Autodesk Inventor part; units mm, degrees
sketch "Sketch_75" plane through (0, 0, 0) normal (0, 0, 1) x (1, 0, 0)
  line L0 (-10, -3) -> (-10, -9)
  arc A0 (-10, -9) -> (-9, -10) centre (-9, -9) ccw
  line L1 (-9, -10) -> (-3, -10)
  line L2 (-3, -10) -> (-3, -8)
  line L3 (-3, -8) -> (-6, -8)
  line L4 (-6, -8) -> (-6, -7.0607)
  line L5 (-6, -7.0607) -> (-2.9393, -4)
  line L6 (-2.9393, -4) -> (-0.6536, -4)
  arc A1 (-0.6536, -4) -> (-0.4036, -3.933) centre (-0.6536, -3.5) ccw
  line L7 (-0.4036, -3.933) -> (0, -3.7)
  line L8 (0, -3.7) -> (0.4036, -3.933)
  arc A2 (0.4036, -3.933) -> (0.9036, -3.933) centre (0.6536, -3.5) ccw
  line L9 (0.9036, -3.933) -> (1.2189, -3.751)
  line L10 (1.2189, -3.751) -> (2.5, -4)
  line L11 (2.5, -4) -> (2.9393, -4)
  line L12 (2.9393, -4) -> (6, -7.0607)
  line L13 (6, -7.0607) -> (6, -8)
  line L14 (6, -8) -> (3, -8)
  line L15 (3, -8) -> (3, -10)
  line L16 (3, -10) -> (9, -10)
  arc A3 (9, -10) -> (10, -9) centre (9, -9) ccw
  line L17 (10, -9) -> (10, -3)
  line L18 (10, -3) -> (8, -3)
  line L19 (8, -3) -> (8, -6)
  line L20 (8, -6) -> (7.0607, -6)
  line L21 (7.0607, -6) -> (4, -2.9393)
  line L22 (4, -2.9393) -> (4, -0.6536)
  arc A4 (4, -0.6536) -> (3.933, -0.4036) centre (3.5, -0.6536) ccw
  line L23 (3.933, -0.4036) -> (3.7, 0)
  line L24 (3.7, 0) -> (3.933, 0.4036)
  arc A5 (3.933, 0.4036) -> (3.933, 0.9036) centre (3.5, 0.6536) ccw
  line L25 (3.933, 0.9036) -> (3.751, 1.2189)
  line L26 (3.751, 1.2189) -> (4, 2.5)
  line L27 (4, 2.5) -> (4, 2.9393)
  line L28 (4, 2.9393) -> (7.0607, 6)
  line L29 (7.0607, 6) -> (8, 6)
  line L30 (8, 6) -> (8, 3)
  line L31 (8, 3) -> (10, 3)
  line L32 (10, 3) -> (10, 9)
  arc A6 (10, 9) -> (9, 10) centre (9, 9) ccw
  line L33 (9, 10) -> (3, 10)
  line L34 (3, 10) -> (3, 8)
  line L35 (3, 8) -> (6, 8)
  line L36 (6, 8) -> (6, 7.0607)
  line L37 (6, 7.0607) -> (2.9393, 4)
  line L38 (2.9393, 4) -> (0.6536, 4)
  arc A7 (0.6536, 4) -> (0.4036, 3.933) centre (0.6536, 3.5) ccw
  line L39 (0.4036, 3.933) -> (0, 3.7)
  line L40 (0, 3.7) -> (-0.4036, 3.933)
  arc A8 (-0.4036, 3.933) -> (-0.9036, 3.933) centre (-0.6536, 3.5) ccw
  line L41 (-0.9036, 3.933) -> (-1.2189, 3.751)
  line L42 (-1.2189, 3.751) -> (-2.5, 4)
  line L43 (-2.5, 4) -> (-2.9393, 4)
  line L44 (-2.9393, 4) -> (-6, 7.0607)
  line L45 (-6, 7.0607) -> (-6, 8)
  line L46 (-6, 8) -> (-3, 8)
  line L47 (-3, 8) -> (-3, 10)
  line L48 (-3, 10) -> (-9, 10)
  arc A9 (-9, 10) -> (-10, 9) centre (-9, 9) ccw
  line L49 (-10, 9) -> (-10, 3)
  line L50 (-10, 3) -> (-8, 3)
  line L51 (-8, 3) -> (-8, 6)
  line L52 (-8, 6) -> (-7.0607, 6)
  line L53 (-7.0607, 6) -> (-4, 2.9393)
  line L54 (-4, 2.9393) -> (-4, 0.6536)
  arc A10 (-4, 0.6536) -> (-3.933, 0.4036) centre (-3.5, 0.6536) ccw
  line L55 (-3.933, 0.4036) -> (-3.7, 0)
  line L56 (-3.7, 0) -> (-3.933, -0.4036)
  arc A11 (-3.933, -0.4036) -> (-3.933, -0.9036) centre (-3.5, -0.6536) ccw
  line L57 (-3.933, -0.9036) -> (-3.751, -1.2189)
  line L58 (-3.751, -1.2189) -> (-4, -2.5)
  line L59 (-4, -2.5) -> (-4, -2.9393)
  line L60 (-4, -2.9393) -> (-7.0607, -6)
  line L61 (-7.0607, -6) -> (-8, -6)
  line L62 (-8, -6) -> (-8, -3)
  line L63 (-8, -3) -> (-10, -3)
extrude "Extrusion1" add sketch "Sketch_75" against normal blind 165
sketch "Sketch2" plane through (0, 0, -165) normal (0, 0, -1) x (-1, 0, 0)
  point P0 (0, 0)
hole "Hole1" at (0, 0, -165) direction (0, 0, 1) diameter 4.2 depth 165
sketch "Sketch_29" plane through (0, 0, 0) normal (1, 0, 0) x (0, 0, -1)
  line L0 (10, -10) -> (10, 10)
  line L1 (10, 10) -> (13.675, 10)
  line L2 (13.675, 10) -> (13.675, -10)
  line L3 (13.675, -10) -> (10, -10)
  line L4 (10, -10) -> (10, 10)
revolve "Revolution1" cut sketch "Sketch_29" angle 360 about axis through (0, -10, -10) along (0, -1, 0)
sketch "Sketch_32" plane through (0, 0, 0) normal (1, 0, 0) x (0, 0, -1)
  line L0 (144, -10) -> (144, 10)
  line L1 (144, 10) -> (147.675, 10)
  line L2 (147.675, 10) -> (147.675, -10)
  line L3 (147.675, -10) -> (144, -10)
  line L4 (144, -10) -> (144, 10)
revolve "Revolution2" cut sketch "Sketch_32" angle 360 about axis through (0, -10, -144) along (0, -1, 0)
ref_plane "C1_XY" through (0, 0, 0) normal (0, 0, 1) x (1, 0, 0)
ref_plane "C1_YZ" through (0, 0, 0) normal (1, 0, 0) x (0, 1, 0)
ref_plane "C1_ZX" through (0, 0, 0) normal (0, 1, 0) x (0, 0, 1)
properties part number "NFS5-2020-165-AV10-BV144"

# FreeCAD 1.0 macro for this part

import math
import FreeCAD as App
import Part
import Sketcher
Q = App.Units.Quantity

doc = App.newDocument("Part")
params = doc.addObject("Spreadsheet::Sheet", "Params")
for row, (alias, value) in enumerate([
    ("sketch1_radius", "1 mm"),
    ("sketch1_radius2", "0.5 mm"),
    ("sketch1_width", "2 mm"),
    ("sketch1_width2", "6 mm"),
    ("sketch1_width3", "3 mm"),
    ("pad1_length", "165 mm"),
    ("sketch2_diameter", "4.2 mm"),
    ("hole_diameter", "4.2 mm"),
    ("hole_depth", "165 mm"),
    ("sketch3_width", "20 mm"),
    ("groove_angle", "360 deg"),
    ("sketch4_width", "20 mm"),
    ("groove2_angle", "360 deg"),
], start=1):
    params.set(f"A{row}", alias)
    params.set(f"B{row}", "=" + value)
    params.setAlias(f"B{row}", alias)

body = doc.addObject("PartDesign::Body", "Body")

# Sketch on XY plane
sketch1 = doc.addObject("Sketcher::SketchObject", "Sketch")
body.addObject(sketch1)
sketch1.AttachmentSupport = (doc.XY_Plane, [""])
sketch1.MapMode = "FlatFace"
sketch1.addGeometry(Part.LineSegment(App.Vector(-8, -3, 0), App.Vector(-10, -3, 0)), False)
sketch1.addGeometry(Part.LineSegment(App.Vector(-10, -3, 0), App.Vector(-10, -9, 0)), False)
sketch1.addGeometry(Part.ArcOfCircle(Part.Circle(App.Vector(-9, -9, 0), App.Vector(0, 0, 1), 1), math.radians(180), math.radians(270)), False)
sketch1.addGeometry(Part.LineSegment(App.Vector(-9, -10, 0), App.Vector(-3, -10, 0)), False)
sketch1.addGeometry(Part.LineSegment(App.Vector(-3, -10, 0), App.Vector(-3, -8, 0)), False)
sketch1.addGeometry(Part.LineSegment(App.Vector(-3, -8, 0), App.Vector(-6, -8, 0)), False)
sketch1.addGeometry(Part.LineSegment(App.Vector(-6, -8, 0), App.Vector(-6, -7.0607, 0)), False)
sketch1.addGeometry(Part.LineSegment(App.Vector(-6, -7.0607, 0), App.Vector(-2.9393, -4, 0)), False)
sketch1.addGeometry(Part.LineSegment(App.Vector(-2.9393, -4, 0), App.Vector(-0.6536, -4, 0)), False)
sketch1.addGeometry(Part.ArcOfCircle(Part.Circle(App.Vector(-0.6536, -3.5, 0), App.Vector(0, 0, 1), 0.5), math.radians(-90), math.radians(-59.999272)), False)
sketch1.addGeometry(Part.LineSegment(App.Vector(-0.4036, -3.933, 0), App.Vector(0, -3.7, 0)), False)
sketch1.addGeometry(Part.LineSegment(App.Vector(0, -3.7, 0), App.Vector(0.4036, -3.933, 0)), False)
sketch1.addGeometry(Part.ArcOfCircle(Part.Circle(App.Vector(0.6536, -3.5, 0), App.Vector(0, 0, 1), 0.499989), math.radians(-120.000728), math.radians(-59.999272)), False)
sketch1.addGeometry(Part.LineSegment(App.Vector(0.9036, -3.933, 0), App.Vector(1.2189, -3.751, 0)), False)
sketch1.addGeometry(Part.LineSegment(App.Vector(1.2189, -3.751, 0), App.Vector(2.5, -4, 0)), False)
sketch1.addGeometry(Part.LineSegment(App.Vector(2.5, -4, 0), App.Vector(2.9393, -4, 0)), False)
sketch1.addGeometry(Part.LineSegment(App.Vector(2.9393, -4, 0), App.Vector(6, -7.0607, 0)), False)
sketch1.addGeometry(Part.LineSegment(App.Vector(6, -7.0607, 0), App.Vector(6, -8, 0)), False)
sketch1.addGeometry(Part.LineSegment(App.Vector(6, -8, 0), App.Vector(3, -8, 0)), False)
sketch1.addGeometry(Part.LineSegment(App.Vector(3, -8, 0), App.Vector(3, -10, 0)), False)
sketch1.addGeometry(Part.LineSegment(App.Vector(3, -10, 0), App.Vector(9, -10, 0)), False)
sketch1.addGeometry(Part.ArcOfCircle(Part.Circle(App.Vector(9, -9, 0), App.Vector(0, 0, 1), 1), math.radians(-90), math.radians(0)), False)
sketch1.addGeometry(Part.LineSegment(App.Vector(10, -9, 0), App.Vector(10, -3, 0)), False)
sketch1.addGeometry(Part.LineSegment(App.Vector(10, -3, 0), App.Vector(8, -3, 0)), False)
sketch1.addGeometry(Part.LineSegment(App.Vector(8, -3, 0), App.Vector(8, -6, 0)), False)
sketch1.addGeometry(Part.LineSegment(App.Vector(8, -6, 0), App.Vector(7.0607, -6, 0)), False)
sketch1.addGeometry(Part.LineSegment(App.Vector(7.0607, -6, 0), App.Vector(4, -2.9393, 0)), False)
sketch1.addGeometry(Part.LineSegment(App.Vector(4, -2.9393, 0), App.Vector(4, -0.6536, 0)), False)
sketch1.addGeometry(Part.ArcOfCircle(Part.Circle(App.Vector(3.5, -0.6536, 0), App.Vector(0, 0, 1), 0.5), math.radians(0), math.radians(30.000728)), False)
sketch1.addGeometry(Part.LineSegment(App.Vector(3.933, -0.4036, 0), App.Vector(3.7, 0, 0)), False)
sketch1.addGeometry(Part.LineSegment(App.Vector(3.7, 0, 0), App.Vector(3.933, 0.4036, 0)), False)
sketch1.addGeometry(Part.ArcOfCircle(Part.Circle(App.Vector(3.5, 0.6536, 0), App.Vector(0, 0, 1), 0.499989), math.radians(-30.000728), math.radians(30.000728)), False)
sketch1.addGeometry(Part.LineSegment(App.Vector(3.933, 0.9036, 0), App.Vector(3.751, 1.2189, 0)), False)
sketch1.addGeometry(Part.LineSegment(App.Vector(3.751, 1.2189, 0), App.Vector(4, 2.5, 0)), False)
sketch1.addGeometry(Part.LineSegment(App.Vector(4, 2.5, 0), App.Vector(4, 2.9393, 0)), False)
sketch1.addGeometry(Part.LineSegment(App.Vector(4, 2.9393, 0), App.Vector(7.0607, 6, 0)), False)
sketch1.addGeometry(Part.LineSegment(App.Vector(7.0607, 6, 0), App.Vector(8, 6, 0)), False)
sketch1.addGeometry(Part.LineSegment(App.Vector(8, 6, 0), App.Vector(8, 3, 0)), False)
sketch1.addGeometry(Part.LineSegment(App.Vector(8, 3, 0), App.Vector(10, 3, 0)), False)
sketch1.addGeometry(Part.LineSegment(App.Vector(10, 3, 0), App.Vector(10, 9, 0)), False)
sketch1.addGeometry(Part.ArcOfCircle(Part.Circle(App.Vector(9, 9, 0), App.Vector(0, 0, 1), 1), math.radians(0), math.radians(90)), False)
sketch1.addGeometry(Part.LineSegment(App.Vector(9, 10, 0), App.Vector(3, 10, 0)), False)
sketch1.addGeometry(Part.LineSegment(App.Vector(3, 10, 0), App.Vector(3, 8, 0)), False)
sketch1.addGeometry(Part.LineSegment(App.Vector(3, 8, 0), App.Vector(6, 8, 0)), False)
sketch1.addGeometry(Part.LineSegment(App.Vector(6, 8, 0), App.Vector(6, 7.0607, 0)), False)
sketch1.addGeometry(Part.LineSegment(App.Vector(6, 7.0607, 0), App.Vector(2.9393, 4, 0)), False)
sketch1.addGeometry(Part.LineSegment(App.Vector(2.9393, 4, 0), App.Vector(0.6536, 4, 0)), False)
sketch1.addGeometry(Part.ArcOfCircle(Part.Circle(App.Vector(0.6536, 3.5, 0), App.Vector(0, 0, 1), 0.5), math.radians(90), math.radians(120.000728)), False)
sketch1.addGeometry(Part.LineSegment(App.Vector(0.4036, 3.933, 0), App.Vector(0, 3.7, 0)), False)
sketch1.addGeometry(Part.LineSegment(App.Vector(0, 3.7, 0), App.Vector(-0.4036, 3.933, 0)), False)
sketch1.addGeometry(Part.ArcOfCircle(Part.Circle(App.Vector(-0.6536, 3.5, 0), App.Vector(0, 0, 1), 0.499989), math.radians(59.999272), math.radians(120.000728)), False)
sketch1.addGeometry(Part.LineSegment(App.Vector(-0.9036, 3.933, 0), App.Vector(-1.2189, 3.751, 0)), False)
sketch1.addGeometry(Part.LineSegment(App.Vector(-1.2189, 3.751, 0), App.Vector(-2.5, 4, 0)), False)
sketch1.addGeometry(Part.LineSegment(App.Vector(-2.5, 4, 0), App.Vector(-2.9393, 4, 0)), False)
sketch1.addGeometry(Part.LineSegment(App.Vector(-2.9393, 4, 0), App.Vector(-6, 7.0607, 0)), False)
sketch1.addGeometry(Part.LineSegment(App.Vector(-6, 7.0607, 0), App.Vector(-6, 8, 0)), False)
sketch1.addGeometry(Part.LineSegment(App.Vector(-6, 8, 0), App.Vector(-3, 8, 0)), False)
sketch1.addGeometry(Part.LineSegment(App.Vector(-3, 8, 0), App.Vector(-3, 10, 0)), False)
sketch1.addGeometry(Part.LineSegment(App.Vector(-3, 10, 0), App.Vector(-9, 10, 0)), False)
sketch1.addGeometry(Part.ArcOfCircle(Part.Circle(App.Vector(-9, 9, 0), App.Vector(0, 0, 1), 1), math.radians(90), math.radians(180)), False)
sketch1.addGeometry(Part.LineSegment(App.Vector(-10, 9, 0), App.Vector(-10, 3, 0)), False)
sketch1.addGeometry(Part.LineSegment(App.Vector(-10, 3, 0), App.Vector(-8, 3, 0)), False)
sketch1.addGeometry(Part.LineSegment(App.Vector(-8, 3, 0), App.Vector(-8, 6, 0)), False)
sketch1.addGeometry(Part.LineSegment(App.Vector(-8, 6, 0), App.Vector(-7.0607, 6, 0)), False)
sketch1.addGeometry(Part.LineSegment(App.Vector(-7.0607, 6, 0), App.Vector(-4, 2.9393, 0)), False)
sketch1.addGeometry(Part.LineSegment(App.Vector(-4, 2.9393, 0), App.Vector(-4, 0.6536, 0)), False)
sketch1.addGeometry(Part.ArcOfCircle(Part.Circle(App.Vector(-3.5, 0.6536, 0), App.Vector(0, 0, 1), 0.5), math.radians(180), math.radians(210.000728)), False)
sketch1.addGeometry(Part.LineSegment(App.Vector(-3.933, 0.4036, 0), App.Vector(-3.7, 0, 0)), False)
sketch1.addGeometry(Part.LineSegment(App.Vector(-3.7, 0, 0), App.Vector(-3.933, -0.4036, 0)), False)
sketch1.addGeometry(Part.ArcOfCircle(Part.Circle(App.Vector(-3.5, -0.6536, 0), App.Vector(0, 0, 1), 0.499989), math.radians(149.999272), math.radians(210.000728)), False)
sketch1.addGeometry(Part.LineSegment(App.Vector(-3.933, -0.9036, 0), App.Vector(-3.751, -1.2189, 0)), False)
sketch1.addGeometry(Part.LineSegment(App.Vector(-3.751, -1.2189, 0), App.Vector(-4, -2.5, 0)), False)
sketch1.addGeometry(Part.LineSegment(App.Vector(-4, -2.5, 0), App.Vector(-4, -2.9393, 0)), False)
sketch1.addGeometry(Part.LineSegment(App.Vector(-4, -2.9393, 0), App.Vector(-7.0607, -6, 0)), False)
sketch1.addGeometry(Part.LineSegment(App.Vector(-7.0607, -6, 0), App.Vector(-8, -6, 0)), False)
sketch1.addGeometry(Part.LineSegment(App.Vector(-8, -6, 0), App.Vector(-8, -3, 0)), False)
sketch1.addConstraint(Sketcher.Constraint("Coincident", 0, 2, 1, 1))
sketch1.addConstraint(Sketcher.Constraint("Tangent", 1, 2, 2, 1))
sketch1.addConstraint(Sketcher.Constraint("Tangent", 2, 2, 3, 1))
sketch1.addConstraint(Sketcher.Constraint("Coincident", 3, 2, 4, 1))
sketch1.addConstraint(Sketcher.Constraint("Coincident", 4, 2, 5, 1))
sketch1.addConstraint(Sketcher.Constraint("Coincident", 5, 2, 6, 1))
sketch1.addConstraint(Sketcher.Constraint("Coincident", 6, 2, 7, 1))
sketch1.addConstraint(Sketcher.Constraint("Coincident", 7, 2, 8, 1))
sketch1.addConstraint(Sketcher.Constraint("Tangent", 8, 2, 9, 1))
sketch1.addConstraint(Sketcher.Constraint("Tangent", 9, 2, 10, 1))
sketch1.addConstraint(Sketcher.Constraint("Coincident", 10, 2, 11, 1))
sketch1.addConstraint(Sketcher.Constraint("Tangent", 11, 2, 12, 1))
sketch1.addConstraint(Sketcher.Constraint("Tangent", 12, 2, 13, 1))
sketch1.addConstraint(Sketcher.Constraint("Coincident", 13, 2, 14, 1))
sketch1.addConstraint(Sketcher.Constraint("Coincident", 14, 2, 15, 1))
sketch1.addConstraint(Sketcher.Constraint("Coincident", 15, 2, 16, 1))
sketch1.addConstraint(Sketcher.Constraint("Coincident", 16, 2, 17, 1))
sketch1.addConstraint(Sketcher.Constraint("Coincident", 17, 2, 18, 1))
sketch1.addConstraint(Sketcher.Constraint("Coincident", 18, 2, 19, 1))
sketch1.addConstraint(Sketcher.Constraint("Coincident", 19, 2, 20, 1))
sketch1.addConstraint(Sketcher.Constraint("Tangent", 20, 2, 21, 1))
sketch1.addConstraint(Sketcher.Constraint("Tangent", 21, 2, 22, 1))
sketch1.addConstraint(Sketcher.Constraint("Coincident", 22, 2, 23, 1))
sketch1.addConstraint(Sketcher.Constraint("Coincident", 23, 2, 24, 1))
sketch1.addConstraint(Sketcher.Constraint("Coincident", 24, 2, 25, 1))
sketch1.addConstraint(Sketcher.Constraint("Coincident", 25, 2, 26, 1))
sketch1.addConstraint(Sketcher.Constraint("Coincident", 26, 2, 27, 1))
sketch1.addConstraint(Sketcher.Constraint("Tangent", 27, 2, 28, 1))
sketch1.addConstraint(Sketcher.Constraint("Tangent", 28, 2, 29, 1))
sketch1.addConstraint(Sketcher.Constraint("Coincident", 29, 2, 30, 1))
sketch1.addConstraint(Sketcher.Constraint("Tangent", 30, 2, 31, 1))
sketch1.addConstraint(Sketcher.Constraint("Tangent", 31, 2, 32, 1))
sketch1.addConstraint(Sketcher.Constraint("Coincident", 32, 2, 33, 1))
sketch1.addConstraint(Sketcher.Constraint("Coincident", 33, 2, 34, 1))
sketch1.addConstraint(Sketcher.Constraint("Coincident", 34, 2, 35, 1))
sketch1.addConstraint(Sketcher.Constraint("Coincident", 35, 2, 36, 1))
sketch1.addConstraint(Sketcher.Constraint("Coincident", 36, 2, 37, 1))
sketch1.addConstraint(Sketcher.Constraint("Coincident", 37, 2, 38, 1))
sketch1.addConstraint(Sketcher.Constraint("Coincident", 38, 2, 39, 1))
sketch1.addConstraint(Sketcher.Constraint("Tangent", 39, 2, 40, 1))
sketch1.addConstraint(Sketcher.Constraint("Tangent", 40, 2, 41, 1))
sketch1.addConstraint(Sketcher.Constraint("Coincident", 41, 2, 42, 1))
sketch1.addConstraint(Sketcher.Constraint("Coincident", 42, 2, 43, 1))
sketch1.addConstraint(Sketcher.Constraint("Coincident", 43, 2, 44, 1))
sketch1.addConstraint(Sketcher.Constraint("Coincident", 44, 2, 45, 1))
sketch1.addConstraint(Sketcher.Constraint("Coincident", 45, 2, 46, 1))
sketch1.addConstraint(Sketcher.Constraint("Tangent", 46, 2, 47, 1))
sketch1.addConstraint(Sketcher.Constraint("Tangent", 47, 2, 48, 1))
sketch1.addConstraint(Sketcher.Constraint("Coincident", 48, 2, 49, 1))
sketch1.addConstraint(Sketcher.Constraint("Tangent", 49, 2, 50, 1))
sketch1.addConstraint(Sketcher.Constraint("Tangent", 50, 2, 51, 1))
sketch1.addConstraint(Sketcher.Constraint("Coincident", 51, 2, 52, 1))
sketch1.addConstraint(Sketcher.Constraint("Coincident", 52, 2, 53, 1))
sketch1.addConstraint(Sketcher.Constraint("Coincident", 53, 2, 54, 1))
sketch1.addConstraint(Sketcher.Constraint("Coincident", 54, 2, 55, 1))
sketch1.addConstraint(Sketcher.Constraint("Coincident", 55, 2, 56, 1))
sketch1.addConstraint(Sketcher.Constraint("Coincident", 56, 2, 57, 1))
sketch1.addConstraint(Sketcher.Constraint("Coincident", 57, 2, 58, 1))
sketch1.addConstraint(Sketcher.Constraint("Tangent", 58, 2, 59, 1))
sketch1.addConstraint(Sketcher.Constraint("Tangent", 59, 2, 60, 1))
sketch1.addConstraint(Sketcher.Constraint("Coincident", 60, 2, 61, 1))
sketch1.addConstraint(Sketcher.Constraint("Coincident", 61, 2, 62, 1))
sketch1.addConstraint(Sketcher.Constraint("Coincident", 62, 2, 63, 1))
sketch1.addConstraint(Sketcher.Constraint("Coincident", 63, 2, 64, 1))
sketch1.addConstraint(Sketcher.Constraint("Coincident", 64, 2, 65, 1))
sketch1.addConstraint(Sketcher.Constraint("Tangent", 65, 2, 66, 1))
sketch1.addConstraint(Sketcher.Constraint("Tangent", 66, 2, 67, 1))
sketch1.addConstraint(Sketcher.Constraint("Coincident", 67, 2, 68, 1))
sketch1.addConstraint(Sketcher.Constraint("Tangent", 68, 2, 69, 1))
sketch1.addConstraint(Sketcher.Constraint("Tangent", 69, 2, 70, 1))
sketch1.addConstraint(Sketcher.Constraint("Coincident", 70, 2, 71, 1))
sketch1.addConstraint(Sketcher.Constraint("Coincident", 71, 2, 72, 1))
sketch1.addConstraint(Sketcher.Constraint("Coincident", 72, 2, 73, 1))
sketch1.addConstraint(Sketcher.Constraint("Coincident", 73, 2, 74, 1))
sketch1.addConstraint(Sketcher.Constraint("Coincident", 74, 2, 75, 1))
sketch1.addConstraint(Sketcher.Constraint("Coincident", 75, 2, 0, 1))
sketch1.addConstraint(Sketcher.Constraint("Horizontal", 0))
sketch1.addConstraint(Sketcher.Constraint("Vertical", 1))
sketch1.addConstraint(Sketcher.Constraint("Horizontal", 3))
sketch1.addConstraint(Sketcher.Constraint("Vertical", 4))
sketch1.addConstraint(Sketcher.Constraint("Horizontal", 5))
sketch1.addConstraint(Sketcher.Constraint("Vertical", 6))
sketch1.addConstraint(Sketcher.Constraint("Horizontal", 8))
sketch1.addConstraint(Sketcher.Constraint("Horizontal", 15))
sketch1.addConstraint(Sketcher.Constraint("Vertical", 17))
sketch1.addConstraint(Sketcher.Constraint("Horizontal", 18))
sketch1.addConstraint(Sketcher.Constraint("Vertical", 19))
sketch1.addConstraint(Sketcher.Constraint("Horizontal", 20))
sketch1.addConstraint(Sketcher.Constraint("Vertical", 22))
sketch1.addConstraint(Sketcher.Constraint("Horizontal", 23))
sketch1.addConstraint(Sketcher.Constraint("Vertical", 24))
sketch1.addConstraint(Sketcher.Constraint("Horizontal", 25))
sketch1.addConstraint(Sketcher.Constraint("Vertical", 27))
sketch1.addConstraint(Sketcher.Constraint("Vertical", 34))
sketch1.addConstraint(Sketcher.Constraint("Horizontal", 36))
sketch1.addConstraint(Sketcher.Constraint("Vertical", 37))
sketch1.addConstraint(Sketcher.Constraint("Horizontal", 38))
sketch1.addConstraint(Sketcher.Constraint("Vertical", 39))
sketch1.addConstraint(Sketcher.Constraint("Horizontal", 41))
sketch1.addConstraint(Sketcher.Constraint("Vertical", 42))
sketch1.addConstraint(Sketcher.Constraint("Horizontal", 43))
sketch1.addConstraint(Sketcher.Constraint("Vertical", 44))
sketch1.addConstraint(Sketcher.Constraint("Horizontal", 46))
sketch1.addConstraint(Sketcher.Constraint("Horizontal", 53))
sketch1.addConstraint(Sketcher.Constraint("Vertical", 55))
sketch1.addConstraint(Sketcher.Constraint("Horizontal", 56))
sketch1.addConstraint(Sketcher.Constraint("Vertical", 57))
sketch1.addConstraint(Sketcher.Constraint("Horizontal", 58))
sketch1.addConstraint(Sketcher.Constraint("Vertical", 60))
sketch1.addConstraint(Sketcher.Constraint("Horizontal", 61))
sketch1.addConstraint(Sketcher.Constraint("Vertical", 62))
sketch1.addConstraint(Sketcher.Constraint("Horizontal", 63))
sketch1.addConstraint(Sketcher.Constraint("Vertical", 65))
sketch1.addConstraint(Sketcher.Constraint("Vertical", 72))
sketch1.addConstraint(Sketcher.Constraint("Horizontal", 74))
sketch1.addConstraint(Sketcher.Constraint("Vertical", 75))
sketch1.addConstraint(Sketcher.Constraint("Equal", 9, 12))
sketch1.addConstraint(Sketcher.Constraint("Equal", 2, 21))
sketch1.addConstraint(Sketcher.Constraint("Equal", 12, 28))
sketch1.addConstraint(Sketcher.Constraint("Equal", 28, 31))
sketch1.addConstraint(Sketcher.Constraint("Equal", 21, 40))
sketch1.addConstraint(Sketcher.Constraint("Equal", 31, 47))
sketch1.addConstraint(Sketcher.Constraint("Equal", 47, 50))
sketch1.addConstraint(Sketcher.Constraint("Equal", 40, 59))
sketch1.addConstraint(Sketcher.Constraint("Equal", 50, 66))
sketch1.addConstraint(Sketcher.Constraint("Equal", 66, 69))
sketch1.addConstraint(Sketcher.Constraint("Symmetric", 2, 3, 40, 3, -1, 1))
sketch1.addConstraint(Sketcher.Constraint("Symmetric", 9, 3, 47, 3, -1, 1))
sketch1.addConstraint(Sketcher.Constraint("Symmetric", 12, 3, 50, 3, -1, 1))
sketch1.addConstraint(Sketcher.Constraint("Symmetric", 21, 3, 59, 3, -1, 1))
sketch1.addConstraint(Sketcher.Constraint("Symmetric", 28, 3, 66, 3, -1, 1))
sketch1.addConstraint(Sketcher.Constraint("Symmetric", 31, 3, 69, 3, -1, 1))
sketch1.addConstraint(Sketcher.Constraint("Symmetric", 4, 2, 42, 2, -1, 1))
sketch1.addConstraint(Sketcher.Constraint("Symmetric", 6, 2, 44, 2, -1, 1))
sketch1.addConstraint(Sketcher.Constraint("Symmetric", 10, 2, 48, 2, -1, 1))
sketch1.addConstraint(Sketcher.Constraint("Symmetric", 13, 2, 51, 2, -1, 1))
sketch1.addConstraint(Sketcher.Constraint("Symmetric", 14, 2, 52, 2, -1, 1))
sketch1.addConstraint(Sketcher.Constraint("Symmetric", 16, 2, 54, 2, -1, 1))
sketch1.addConstraint(Sketcher.Constraint("Symmetric", 18, 2, 56, 2, -1, 1))
sketch1.addConstraint(Sketcher.Constraint("Symmetric", 23, 2, 61, 2, -1, 1))
sketch1.addConstraint(Sketcher.Constraint("Symmetric", 25, 2, 63, 2, -1, 1))
sketch1.addConstraint(Sketcher.Constraint("Symmetric", 29, 2, 67, 2, -1, 1))
sketch1.addConstraint(Sketcher.Constraint("Symmetric", 32, 2, 70, 2, -1, 1))
sketch1.addConstraint(Sketcher.Constraint("Symmetric", 33, 2, 71, 2, -1, 1))
sketch1.addConstraint(Sketcher.Constraint("Symmetric", 35, 2, 73, 2, -1, 1))
sketch1.addConstraint(Sketcher.Constraint("Symmetric", 37, 2, 75, 2, -1, 1))
sketch1.addConstraint(Sketcher.Constraint("Symmetric", 9, 3, 12, 3, -2))
sketch1.addConstraint(Sketcher.Constraint("Symmetric", 2, 3, 21, 3, -2))
sketch1.addConstraint(Sketcher.Constraint("Symmetric", 31, 3, 66, 3, -2))
sketch1.addConstraint(Sketcher.Constraint("Symmetric", 7, 2, 15, 2, -2))
sketch1.addConstraint(Sketcher.Constraint("Symmetric", 6, 2, 16, 2, -2))
sketch1.addConstraint(Sketcher.Constraint("Symmetric", 4, 2, 18, 2, -2))
sketch1.addConstraint(Sketcher.Constraint("Symmetric", 37, 2, 61, 2, -2))
sketch1.addConstraint(Sketcher.Constraint("Symmetric", 35, 2, 63, 2, -2))
sketch1.addConstraint(Sketcher.Constraint("Symmetric", 34, 2, 64, 2, -2))
sketch1.addConstraint(Sketcher.Constraint("PointOnObject", 10, 2, -2))
sketch1.addConstraint(Sketcher.Constraint("PointOnObject", 29, 2, -1))
sketch1.addConstraint(Sketcher.Constraint("Parallel", 10, 13))
sketch1.addConstraint(Sketcher.Constraint("Perpendicular", 7, 16))
sketch1.addConstraint(Sketcher.Constraint("Parallel", 16, 26))
sketch1.addConstraint(Sketcher.Constraint("Perpendicular", 13, 29))
sketch1.addConstraint(Sketcher.Constraint("Parallel", 29, 32))
sketch1.addConstraint(Sketcher.Constraint("Perpendicular", 14, 33))
sketch1.addConstraint(Sketcher.Constraint("Perpendicular", 26, 35))
sketch1.addConstraint(Sketcher.Constraint("Parallel", 35, 45))
sketch1.addConstraint(Sketcher.Constraint("Perpendicular", 45, 54))
sketch1.addConstraint(Sketcher.Constraint("Perpendicular", 64, 73))
sketch1.addConstraint(Sketcher.Constraint("Equal", 58, 1))
sketch1.addConstraint(Sketcher.Constraint("Equal", 61, 4))
sketch1.addConstraint(Sketcher.Constraint("Equal", 74, 6))
sketch1.addConstraint(Sketcher.Constraint("Equal", 56, 24))
sketch1.addConstraint(Sketcher.Constraint("Equal", 46, 27))
sketch1.addConstraint(Sketcher.Constraint("Equal", 53, 34))
sketch1.addConstraint(Sketcher.Constraint("Equal", 16, 26))
sketch1.addConstraint(Sketcher.Constraint("Equal", 11, 29))
sketch1.addConstraint(Sketcher.Constraint("Radius", 2, Q("1 mm")))
sketch1.addConstraint(Sketcher.Constraint("Radius", 9, Q("0.5 mm")))
sketch1.addConstraint(Sketcher.Constraint("DistanceX", 0, 2, 0, 1, Q("2 mm")))
sketch1.addConstraint(Sketcher.Constraint("DistanceX", 3, 1, 3, 2, Q("6 mm")))
sketch1.addConstraint(Sketcher.Constraint("DistanceX", 5, 2, 5, 1, Q("3 mm")))
sketch1.addConstraint(Sketcher.Constraint("Angle", 14, Q("-10.999 deg")))
sketch1.addConstraint(Sketcher.Constraint("DistanceX", 2, 3, -1, 1, Q("9 mm")))
sketch1.addConstraint(Sketcher.Constraint("DistanceY", 7, 2, -1, 1, Q("4 mm")))
sketch1.addConstraint(Sketcher.Constraint("DistanceY", 10, 2, -1, 1, Q("3.7 mm")))
sketch1.addConstraint(Sketcher.Constraint("DistanceX", -1, 1, 14, 2, Q("2.5 mm")))
sketch1.addConstraint(Sketcher.Constraint("Distance", 10, Q("0.466 mm")))
sketch1.addConstraint(Sketcher.Constraint("DistanceX", 8, 1, 8, 2, Q("2.2857 mm")))
sketch1.setExpression("Constraints[175]", "Params.sketch1_radius")
sketch1.setExpression("Constraints[176]", "Params.sketch1_radius2")
sketch1.setExpression("Constraints[177]", "Params.sketch1_width")
sketch1.setExpression("Constraints[178]", "Params.sketch1_width2")
sketch1.setExpression("Constraints[179]", "Params.sketch1_width3")
pad1 = doc.addObject("PartDesign::Pad", "Pad")
body.addObject(pad1)
pad1.Profile = sketch1
pad1.setExpression("Length", "Params.pad1_length")
pad1.Reversed = True

# Sketch on XY plane
sketch2 = doc.addObject("Sketcher::SketchObject", "Sketch001")
body.addObject(sketch2)
sketch2.AttachmentSupport = (doc.XY_Plane, [""])
sketch2.MapMode = "FlatFace"
sketch2.AttachmentOffset = App.Placement(App.Vector(0, 0, -165), App.Rotation())
sketch2.addGeometry(Part.Circle(App.Vector(0, 0, 0), App.Vector(0, 0, 1), 2.1), False)
sketch2.addConstraint(Sketcher.Constraint("Coincident", 0, 3, -1, 1))
sketch2.addConstraint(Sketcher.Constraint("Diameter", 0, Q("4.2 mm")))
sketch2.setExpression("Constraints[1]", "Params.sketch2_diameter")
doc.recompute()
hole = doc.addObject("PartDesign::Hole", "Hole")
body.addObject(hole)
hole.Profile = sketch2
hole.ThreadType = "None"
hole.setExpression("Diameter", "Params.hole_diameter")
hole.DepthType = "Dimension"
hole.setExpression("Depth", "Params.hole_depth")
hole.DrillPoint = "Flat"
hole.Reversed = True

# Sketch on YZ plane
sketch3 = doc.addObject("Sketcher::SketchObject", "Sketch002")
body.addObject(sketch3)
sketch3.AttachmentSupport = (doc.YZ_Plane, [""])
sketch3.MapMode = "FlatFace"
sketch3.addGeometry(Part.LineSegment(App.Vector(10, -10, 0), App.Vector(-10, -10, 0)), False)
sketch3.addGeometry(Part.LineSegment(App.Vector(-10, -10, 0), App.Vector(-10, -13.675, 0)), False)
sketch3.addGeometry(Part.LineSegment(App.Vector(-10, -13.675, 0), App.Vector(10, -13.675, 0)), False)
sketch3.addGeometry(Part.LineSegment(App.Vector(10, -13.675, 0), App.Vector(10, -10, 0)), False)
sketch3.addGeometry(Part.LineSegment(App.Vector(10, -10, 0), App.Vector(-10, -10, 0)), True)  # axis
sketch3.addConstraint(Sketcher.Constraint("Coincident", 0, 2, 1, 1))
sketch3.addConstraint(Sketcher.Constraint("Coincident", 1, 2, 2, 1))
sketch3.addConstraint(Sketcher.Constraint("Coincident", 2, 2, 3, 1))
sketch3.addConstraint(Sketcher.Constraint("Coincident", 3, 2, 0, 1))
sketch3.addConstraint(Sketcher.Constraint("Horizontal", 0))
sketch3.addConstraint(Sketcher.Constraint("Vertical", 1))
sketch3.addConstraint(Sketcher.Constraint("Horizontal", 2))
sketch3.addConstraint(Sketcher.Constraint("Vertical", 3))
sketch3.addConstraint(Sketcher.Constraint("Horizontal", 4))
sketch3.addConstraint(Sketcher.Constraint("Coincident", 4, 1, 3, 2))
sketch3.addConstraint(Sketcher.Constraint("Vertical", 1, 2, 4, 2))
sketch3.addConstraint(Sketcher.Constraint("DistanceX", 0, 2, 0, 1, Q("20 mm")))
sketch3.addConstraint(Sketcher.Constraint("DistanceX", 0, 2, -1, 1, Q("10 mm")))
sketch3.addConstraint(Sketcher.Constraint("DistanceY", 0, 2, -1, 1, Q("10 mm")))
sketch3.addConstraint(Sketcher.Constraint("DistanceY", 1, 2, 1, 1, Q("3.675 mm")))
sketch3.setExpression("Constraints[11]", "Params.sketch3_width")
groove = doc.addObject("PartDesign::Groove", "Groove")
body.addObject(groove)
groove.Profile = sketch3
groove.ReferenceAxis = (sketch3, ["Axis0"])
groove.setExpression("Angle", "Params.groove_angle")

# Sketch on YZ plane
sketch4 = doc.addObject("Sketcher::SketchObject", "Sketch003")
body.addObject(sketch4)
sketch4.AttachmentSupport = (doc.YZ_Plane, [""])
sketch4.MapMode = "FlatFace"
sketch4.addGeometry(Part.LineSegment(App.Vector(10, -144, 0), App.Vector(-10, -144, 0)), False)
sketch4.addGeometry(Part.LineSegment(App.Vector(-10, -144, 0), App.Vector(-10, -147.675, 0)), False)
sketch4.addGeometry(Part.LineSegment(App.Vector(-10, -147.675, 0), App.Vector(10, -147.675, 0)), False)
sketch4.addGeometry(Part.LineSegment(App.Vector(10, -147.675, 0), App.Vector(10, -144, 0)), False)
sketch4.addGeometry(Part.LineSegment(App.Vector(10, -144, 0), App.Vector(-10, -144, 0)), True)  # axis
sketch4.addConstraint(Sketcher.Constraint("Coincident", 0, 2, 1, 1))
sketch4.addConstraint(Sketcher.Constraint("Coincident", 1, 2, 2, 1))
sketch4.addConstraint(Sketcher.Constraint("Coincident", 2, 2, 3, 1))
sketch4.addConstraint(Sketcher.Constraint("Coincident", 3, 2, 0, 1))
sketch4.addConstraint(Sketcher.Constraint("Horizontal", 0))
sketch4.addConstraint(Sketcher.Constraint("Vertical", 1))
sketch4.addConstraint(Sketcher.Constraint("Horizontal", 2))
sketch4.addConstraint(Sketcher.Constraint("Vertical", 3))
sketch4.addConstraint(Sketcher.Constraint("Horizontal", 4))
sketch4.addConstraint(Sketcher.Constraint("Coincident", 4, 1, 3, 2))
sketch4.addConstraint(Sketcher.Constraint("Vertical", 1, 2, 4, 2))
sketch4.addConstraint(Sketcher.Constraint("DistanceX", 0, 2, 0, 1, Q("20 mm")))
sketch4.addConstraint(Sketcher.Constraint("DistanceX", 0, 2, -1, 1, Q("10 mm")))
sketch4.addConstraint(Sketcher.Constraint("DistanceY", 0, 2, -1, 1, Q("144 mm")))
sketch4.addConstraint(Sketcher.Constraint("DistanceY", 1, 2, 1, 1, Q("3.675 mm")))
sketch4.setExpression("Constraints[11]", "Params.sketch4_width")
groove2 = doc.addObject("PartDesign::Groove", "Groove001")
body.addObject(groove2)
groove2.Profile = sketch4
groove2.ReferenceAxis = (sketch4, ["Axis0"])
groove2.setExpression("Angle", "Params.groove2_angle")

doc.recompute()
